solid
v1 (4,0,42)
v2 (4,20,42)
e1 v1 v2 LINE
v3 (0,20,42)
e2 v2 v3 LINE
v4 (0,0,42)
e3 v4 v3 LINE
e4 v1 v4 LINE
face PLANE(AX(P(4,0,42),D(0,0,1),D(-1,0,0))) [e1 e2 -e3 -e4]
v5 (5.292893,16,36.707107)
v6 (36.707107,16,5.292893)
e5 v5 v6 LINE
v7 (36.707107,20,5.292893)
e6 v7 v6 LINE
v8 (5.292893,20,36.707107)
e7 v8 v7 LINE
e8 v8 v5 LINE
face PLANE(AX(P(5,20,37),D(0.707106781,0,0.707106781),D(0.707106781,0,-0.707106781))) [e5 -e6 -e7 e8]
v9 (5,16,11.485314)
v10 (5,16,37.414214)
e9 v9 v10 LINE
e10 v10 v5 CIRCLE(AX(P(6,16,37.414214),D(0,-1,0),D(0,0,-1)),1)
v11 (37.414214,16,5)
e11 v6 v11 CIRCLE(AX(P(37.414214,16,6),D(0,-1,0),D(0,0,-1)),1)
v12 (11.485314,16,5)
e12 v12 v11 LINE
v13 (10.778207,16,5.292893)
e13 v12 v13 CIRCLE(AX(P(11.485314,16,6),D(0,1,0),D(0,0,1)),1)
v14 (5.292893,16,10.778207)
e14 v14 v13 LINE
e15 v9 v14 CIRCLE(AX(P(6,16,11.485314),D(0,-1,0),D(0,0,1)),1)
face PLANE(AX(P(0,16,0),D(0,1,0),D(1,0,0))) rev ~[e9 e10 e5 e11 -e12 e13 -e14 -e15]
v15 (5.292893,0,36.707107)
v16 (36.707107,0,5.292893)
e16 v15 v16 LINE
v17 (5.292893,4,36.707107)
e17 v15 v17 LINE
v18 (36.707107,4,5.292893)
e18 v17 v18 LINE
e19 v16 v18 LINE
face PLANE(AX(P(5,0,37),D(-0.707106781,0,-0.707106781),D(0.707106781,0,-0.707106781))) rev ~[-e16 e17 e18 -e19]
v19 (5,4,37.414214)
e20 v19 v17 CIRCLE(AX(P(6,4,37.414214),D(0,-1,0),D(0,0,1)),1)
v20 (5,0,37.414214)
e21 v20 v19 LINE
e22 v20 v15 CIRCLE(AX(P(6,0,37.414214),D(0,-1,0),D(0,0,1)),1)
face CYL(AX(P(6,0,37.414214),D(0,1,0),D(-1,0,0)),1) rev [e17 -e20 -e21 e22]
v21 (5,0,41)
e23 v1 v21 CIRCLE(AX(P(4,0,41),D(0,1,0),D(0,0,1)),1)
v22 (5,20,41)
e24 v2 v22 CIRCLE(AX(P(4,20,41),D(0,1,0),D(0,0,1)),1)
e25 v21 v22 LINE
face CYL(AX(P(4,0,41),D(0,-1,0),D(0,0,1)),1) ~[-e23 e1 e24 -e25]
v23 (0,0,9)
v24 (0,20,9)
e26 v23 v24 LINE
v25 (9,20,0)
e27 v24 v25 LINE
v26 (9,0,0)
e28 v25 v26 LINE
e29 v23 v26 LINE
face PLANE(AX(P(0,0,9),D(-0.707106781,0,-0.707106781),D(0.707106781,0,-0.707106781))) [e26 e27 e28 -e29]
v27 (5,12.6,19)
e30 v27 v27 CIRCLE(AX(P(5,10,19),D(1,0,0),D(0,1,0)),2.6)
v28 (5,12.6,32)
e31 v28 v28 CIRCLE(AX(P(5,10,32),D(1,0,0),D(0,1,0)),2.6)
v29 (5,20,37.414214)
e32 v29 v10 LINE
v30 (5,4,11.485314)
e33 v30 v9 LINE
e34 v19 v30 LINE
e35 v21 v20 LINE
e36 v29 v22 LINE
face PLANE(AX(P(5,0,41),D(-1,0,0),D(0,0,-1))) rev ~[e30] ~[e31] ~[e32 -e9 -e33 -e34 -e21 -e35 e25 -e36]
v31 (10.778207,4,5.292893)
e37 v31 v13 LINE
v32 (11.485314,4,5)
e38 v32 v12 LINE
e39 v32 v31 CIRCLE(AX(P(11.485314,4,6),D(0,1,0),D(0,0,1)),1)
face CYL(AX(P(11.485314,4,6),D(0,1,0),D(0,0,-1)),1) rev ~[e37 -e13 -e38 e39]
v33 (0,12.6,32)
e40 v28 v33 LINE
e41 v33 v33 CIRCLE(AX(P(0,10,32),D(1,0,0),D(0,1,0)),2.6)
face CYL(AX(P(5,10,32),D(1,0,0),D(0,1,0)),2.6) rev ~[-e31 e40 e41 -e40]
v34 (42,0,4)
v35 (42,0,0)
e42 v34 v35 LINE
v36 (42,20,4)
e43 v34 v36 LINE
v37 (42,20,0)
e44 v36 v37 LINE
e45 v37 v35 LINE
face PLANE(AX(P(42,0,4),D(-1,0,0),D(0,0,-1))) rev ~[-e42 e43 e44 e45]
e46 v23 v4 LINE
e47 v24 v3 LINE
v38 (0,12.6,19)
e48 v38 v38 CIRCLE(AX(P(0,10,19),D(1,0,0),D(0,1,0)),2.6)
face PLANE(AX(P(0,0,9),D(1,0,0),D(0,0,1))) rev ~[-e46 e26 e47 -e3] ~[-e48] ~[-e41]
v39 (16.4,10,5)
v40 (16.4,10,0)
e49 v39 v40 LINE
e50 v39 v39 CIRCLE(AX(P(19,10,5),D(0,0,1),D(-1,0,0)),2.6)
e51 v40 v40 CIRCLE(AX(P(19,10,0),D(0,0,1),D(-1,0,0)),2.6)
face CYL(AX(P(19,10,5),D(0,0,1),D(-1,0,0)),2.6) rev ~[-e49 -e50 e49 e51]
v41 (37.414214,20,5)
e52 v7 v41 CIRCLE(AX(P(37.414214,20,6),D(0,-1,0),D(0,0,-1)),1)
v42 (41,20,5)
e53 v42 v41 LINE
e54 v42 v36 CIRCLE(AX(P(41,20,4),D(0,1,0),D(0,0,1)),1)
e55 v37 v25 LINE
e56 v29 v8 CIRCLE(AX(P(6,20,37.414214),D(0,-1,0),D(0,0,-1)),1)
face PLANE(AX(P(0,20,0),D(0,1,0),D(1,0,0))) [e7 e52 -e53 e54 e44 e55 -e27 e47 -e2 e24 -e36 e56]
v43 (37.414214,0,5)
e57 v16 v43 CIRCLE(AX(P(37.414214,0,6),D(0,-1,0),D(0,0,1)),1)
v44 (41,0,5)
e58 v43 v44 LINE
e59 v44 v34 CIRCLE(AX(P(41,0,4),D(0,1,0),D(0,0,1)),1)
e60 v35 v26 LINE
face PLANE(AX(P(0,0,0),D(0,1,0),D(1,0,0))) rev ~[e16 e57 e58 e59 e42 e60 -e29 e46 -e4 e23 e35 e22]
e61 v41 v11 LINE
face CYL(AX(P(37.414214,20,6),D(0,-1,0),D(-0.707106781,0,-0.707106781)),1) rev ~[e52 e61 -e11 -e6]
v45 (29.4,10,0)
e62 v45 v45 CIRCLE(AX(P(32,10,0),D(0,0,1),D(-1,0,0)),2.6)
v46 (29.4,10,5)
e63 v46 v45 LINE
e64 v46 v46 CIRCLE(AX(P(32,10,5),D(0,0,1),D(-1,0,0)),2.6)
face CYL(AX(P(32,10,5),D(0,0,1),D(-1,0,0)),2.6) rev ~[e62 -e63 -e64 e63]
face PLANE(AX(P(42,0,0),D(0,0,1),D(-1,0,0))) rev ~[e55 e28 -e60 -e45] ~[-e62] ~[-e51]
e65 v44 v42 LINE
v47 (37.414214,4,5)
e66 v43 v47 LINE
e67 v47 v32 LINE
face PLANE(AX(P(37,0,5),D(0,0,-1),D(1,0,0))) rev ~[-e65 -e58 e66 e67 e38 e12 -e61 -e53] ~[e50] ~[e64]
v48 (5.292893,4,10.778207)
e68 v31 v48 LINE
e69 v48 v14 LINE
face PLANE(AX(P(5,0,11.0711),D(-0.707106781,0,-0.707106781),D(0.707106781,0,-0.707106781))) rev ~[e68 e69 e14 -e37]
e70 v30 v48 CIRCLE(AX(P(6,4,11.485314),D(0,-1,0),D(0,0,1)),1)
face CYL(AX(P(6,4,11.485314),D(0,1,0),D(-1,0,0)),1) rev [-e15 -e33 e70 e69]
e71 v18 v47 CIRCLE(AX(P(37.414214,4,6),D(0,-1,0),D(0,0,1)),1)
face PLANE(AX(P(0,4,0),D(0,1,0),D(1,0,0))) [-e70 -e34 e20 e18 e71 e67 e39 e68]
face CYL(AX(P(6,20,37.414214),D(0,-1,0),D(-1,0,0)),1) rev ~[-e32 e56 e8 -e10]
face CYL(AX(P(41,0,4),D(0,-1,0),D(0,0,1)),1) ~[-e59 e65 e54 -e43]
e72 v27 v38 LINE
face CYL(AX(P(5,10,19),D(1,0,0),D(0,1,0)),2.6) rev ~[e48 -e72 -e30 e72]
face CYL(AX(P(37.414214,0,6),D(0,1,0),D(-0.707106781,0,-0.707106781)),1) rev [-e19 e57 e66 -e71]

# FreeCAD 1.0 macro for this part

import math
import FreeCAD as App
import Part
import Sketcher

V = App.Vector


def edges_at(feature, points):
    """Names of the edges that pass closest to the given points."""
    edges = feature.Shape.Edges
    near = lambda p: min(range(len(edges)), key=lambda i: edges[i].distToShape(Part.Vertex(*p))[0])
    return sorted({f"Edge{near(p) + 1}" for p in points})

doc = App.newDocument("Part")
body = doc.addObject("PartDesign::Body", "Body")

# Sketch on XZ plane
sketch1 = doc.addObject("Sketcher::SketchObject", "Sketch")
body.addObject(sketch1)
sketch1.AttachmentSupport = (doc.XZ_Plane, [""])
sketch1.MapMode = "FlatFace"
sketch1.addGeometry(Part.LineSegment(V(9, 0, 0), V(0, 9, 0)), False)
sketch1.addGeometry(Part.LineSegment(V(0, 9, 0), V(0, 42, 0)), False)
sketch1.addGeometry(Part.LineSegment(V(0, 42, 0), V(4, 42, 0)), False)
sketch1.addGeometry(Part.ArcOfCircle(Part.Circle(V(4, 41, 0), V(0, 0, 1), 1), math.radians(0), math.radians(90)), False)
sketch1.addGeometry(Part.LineSegment(V(5, 41, 0), V(5, 37, 0)), False)
sketch1.addGeometry(Part.LineSegment(V(5, 37, 0), V(37, 5, 0)), False)
sketch1.addGeometry(Part.LineSegment(V(37, 5, 0), V(41, 5, 0)), False)
sketch1.addGeometry(Part.ArcOfCircle(Part.Circle(V(41, 4, 0), V(0, 0, 1), 1), math.radians(0), math.radians(90)), False)
sketch1.addGeometry(Part.LineSegment(V(42, 4, 0), V(42, 0, 0)), False)
sketch1.addGeometry(Part.LineSegment(V(42, 0, 0), V(9, 0, 0)), False)
sketch1.addConstraint(Sketcher.Constraint("Coincident", 0, 2, 1, 1))
sketch1.addConstraint(Sketcher.Constraint("Coincident", 1, 2, 2, 1))
sketch1.addConstraint(Sketcher.Constraint("Tangent", 2, 2, 3, 2))
sketch1.addConstraint(Sketcher.Constraint("Tangent", 3, 1, 4, 1))
sketch1.addConstraint(Sketcher.Constraint("Coincident", 4, 2, 5, 1))
sketch1.addConstraint(Sketcher.Constraint("Coincident", 5, 2, 6, 1))
sketch1.addConstraint(Sketcher.Constraint("Tangent", 6, 2, 7, 2))
sketch1.addConstraint(Sketcher.Constraint("Tangent", 7, 1, 8, 1))
sketch1.addConstraint(Sketcher.Constraint("Coincident", 8, 2, 9, 1))
sketch1.addConstraint(Sketcher.Constraint("Coincident", 9, 2, 0, 1))
sketch1.addConstraint(Sketcher.Constraint("Vertical", 1))
sketch1.addConstraint(Sketcher.Constraint("Horizontal", 2))
sketch1.addConstraint(Sketcher.Constraint("Vertical", 4))
sketch1.addConstraint(Sketcher.Constraint("Horizontal", 6))
sketch1.addConstraint(Sketcher.Constraint("Vertical", 8))
sketch1.addConstraint(Sketcher.Constraint("Horizontal", 9))
sketch1.addConstraint(Sketcher.Constraint("Equal", 3, 7))
sketch1.addConstraint(Sketcher.Constraint("PointOnObject", 0, 2, -2))
sketch1.addConstraint(Sketcher.Constraint("PointOnObject", 8, 2, -1))
sketch1.addConstraint(Sketcher.Constraint("Parallel", 0, 5))
sketch1.addConstraint(Sketcher.Constraint("Equal", 2, 6))
sketch1.addConstraint(Sketcher.Constraint("Equal", 9, 1))
sketch1.addConstraint(Sketcher.Constraint("Equal", 6, 4))
sketch1.addConstraint(Sketcher.Constraint("Equal", 4, 8))
sketch1.addConstraint(Sketcher.Constraint("Radius", 3, 1.0))
sketch1.addConstraint(Sketcher.Constraint("DistanceY", -1, 1, 0, 2, 9.0))
sketch1.addConstraint(Sketcher.Constraint("DistanceY", -1, 1, 1, 2, 42.0))
sketch1.addConstraint(Sketcher.Constraint("DistanceX", -1, 1, 3, 1, 5.0))
pad1 = doc.addObject("PartDesign::Pad", "Pad")
body.addObject(pad1)
pad1.Profile = sketch1
pad1.Length = 4
pad1.Reversed = True

# Sketch on XZ plane
sketch2 = doc.addObject("Sketcher::SketchObject", "Sketch001")
body.addObject(sketch2)
sketch2.AttachmentSupport = (doc.XZ_Plane, [""])
sketch2.MapMode = "FlatFace"
sketch2.addGeometry(Part.LineSegment(V(9, 0, 0), V(0, 9, 0)), False)
sketch2.addGeometry(Part.LineSegment(V(0, 9, 0), V(0, 42, 0)), False)
sketch2.addGeometry(Part.LineSegment(V(0, 42, 0), V(4, 42, 0)), False)
sketch2.addGeometry(Part.ArcOfCircle(Part.Circle(V(4, 41, 0), V(0, 0, 1), 1), math.radians(0), math.radians(90)), False)
sketch2.addGeometry(Part.LineSegment(V(5, 41, 0), V(5, 11.1, 0)), False)
sketch2.addGeometry(Part.LineSegment(V(5, 11.1, 0), V(11.1, 5, 0)), False)
sketch2.addGeometry(Part.LineSegment(V(11.1, 5, 0), V(41, 5, 0)), False)
sketch2.addGeometry(Part.ArcOfCircle(Part.Circle(V(41, 4, 0), V(0, 0, 1), 1), math.radians(0), math.radians(90)), False)
sketch2.addGeometry(Part.LineSegment(V(42, 4, 0), V(42, 0, 0)), False)
sketch2.addGeometry(Part.LineSegment(V(42, 0, 0), V(9, 0, 0)), False)
sketch2.addConstraint(Sketcher.Constraint("Coincident", 0, 2, 1, 1))
sketch2.addConstraint(Sketcher.Constraint("Coincident", 1, 2, 2, 1))
sketch2.addConstraint(Sketcher.Constraint("Tangent", 2, 2, 3, 2))
sketch2.addConstraint(Sketcher.Constraint("Tangent", 3, 1, 4, 1))
sketch2.addConstraint(Sketcher.Constraint("Coincident", 4, 2, 5, 1))
sketch2.addConstraint(Sketcher.Constraint("Coincident", 5, 2, 6, 1))
sketch2.addConstraint(Sketcher.Constraint("Tangent", 6, 2, 7, 2))
sketch2.addConstraint(Sketcher.Constraint("Tangent", 7, 1, 8, 1))
sketch2.addConstraint(Sketcher.Constraint("Coincident", 8, 2, 9, 1))
sketch2.addConstraint(Sketcher.Constraint("Coincident", 9, 2, 0, 1))
sketch2.addConstraint(Sketcher.Constraint("Vertical", 1))
sketch2.addConstraint(Sketcher.Constraint("Horizontal", 2))
sketch2.addConstraint(Sketcher.Constraint("Vertical", 4))
sketch2.addConstraint(Sketcher.Constraint("Horizontal", 6))
sketch2.addConstraint(Sketcher.Constraint("Vertical", 8))
sketch2.addConstraint(Sketcher.Constraint("Horizontal", 9))
sketch2.addConstraint(Sketcher.Constraint("Equal", 3, 7))
sketch2.addConstraint(Sketcher.Constraint("PointOnObject", 0, 2, -2))
sketch2.addConstraint(Sketcher.Constraint("PointOnObject", 8, 2, -1))
sketch2.addConstraint(Sketcher.Constraint("Parallel", 0, 5))
sketch2.addConstraint(Sketcher.Constraint("Equal", 9, 1))
sketch2.addConstraint(Sketcher.Constraint("Equal", 6, 4))
sketch2.addConstraint(Sketcher.Constraint("Equal", 2, 8))
sketch2.addConstraint(Sketcher.Constraint("Radius", 3, 1.0))
sketch2.addConstraint(Sketcher.Constraint("DistanceY", -1, 1, 0, 2, 9.0))
sketch2.addConstraint(Sketcher.Constraint("DistanceY", -1, 1, 1, 2, 42.0))
sketch2.addConstraint(Sketcher.Constraint("DistanceX", -1, 1, 3, 1, 5.0))
sketch2.addConstraint(Sketcher.Constraint("DistanceX", 6, 1, 6, 2, 29.929))
pad2 = doc.addObject("PartDesign::Pad", "Pad001")
body.addObject(pad2)
pad2.Profile = sketch2
pad2.Length = 20
pad2.Reversed = True

# Sketch on XZ plane
sketch3 = doc.addObject("Sketcher::SketchObject", "Sketch002")
body.addObject(sketch3)
sketch3.AttachmentSupport = (doc.XZ_Plane, [""])
sketch3.MapMode = "FlatFace"
sketch3.AttachmentOffset = App.Placement(V(0, 0, -20), App.Rotation())
sketch3.addGeometry(Part.LineSegment(V(9, 0, 0), V(0, 9, 0)), False)
sketch3.addGeometry(Part.LineSegment(V(0, 9, 0), V(0, 42, 0)), False)
sketch3.addGeometry(Part.LineSegment(V(0, 42, 0), V(4, 42, 0)), False)
sketch3.addGeometry(Part.ArcOfCircle(Part.Circle(V(4, 41, 0), V(0, 0, 1), 1), math.radians(0), math.radians(90)), False)
sketch3.addGeometry(Part.LineSegment(V(5, 41, 0), V(5, 37, 0)), False)
sketch3.addGeometry(Part.LineSegment(V(5, 37, 0), V(37, 5, 0)), False)
sketch3.addGeometry(Part.LineSegment(V(37, 5, 0), V(41, 5, 0)), False)
sketch3.addGeometry(Part.ArcOfCircle(Part.Circle(V(41, 4, 0), V(0, 0, 1), 1), math.radians(0), math.radians(90)), False)
sketch3.addGeometry(Part.LineSegment(V(42, 4, 0), V(42, 0, 0)), False)
sketch3.addGeometry(Part.LineSegment(V(42, 0, 0), V(9, 0, 0)), False)
sketch3.addConstraint(Sketcher.Constraint("Coincident", 0, 2, 1, 1))
sketch3.addConstraint(Sketcher.Constraint("Coincident", 1, 2, 2, 1))
sketch3.addConstraint(Sketcher.Constraint("Tangent", 2, 2, 3, 2))
sketch3.addConstraint(Sketcher.Constraint("Tangent", 3, 1, 4, 1))
sketch3.addConstraint(Sketcher.Constraint("Coincident", 4, 2, 5, 1))
sketch3.addConstraint(Sketcher.Constraint("Coincident", 5, 2, 6, 1))
sketch3.addConstraint(Sketcher.Constraint("Tangent", 6, 2, 7, 2))
sketch3.addConstraint(Sketcher.Constraint("Tangent", 7, 1, 8, 1))
sketch3.addConstraint(Sketcher.Constraint("Coincident", 8, 2, 9, 1))
sketch3.addConstraint(Sketcher.Constraint("Coincident", 9, 2, 0, 1))
sketch3.addConstraint(Sketcher.Constraint("Vertical", 1))
sketch3.addConstraint(Sketcher.Constraint("Horizontal", 2))
sketch3.addConstraint(Sketcher.Constraint("Vertical", 4))
sketch3.addConstraint(Sketcher.Constraint("Horizontal", 6))
sketch3.addConstraint(Sketcher.Constraint("Vertical", 8))
sketch3.addConstraint(Sketcher.Constraint("Horizontal", 9))
sketch3.addConstraint(Sketcher.Constraint("Equal", 3, 7))
sketch3.addConstraint(Sketcher.Constraint("PointOnObject", 0, 2, -2))
sketch3.addConstraint(Sketcher.Constraint("PointOnObject", 8, 2, -1))
sketch3.addConstraint(Sketcher.Constraint("Parallel", 0, 5))
sketch3.addConstraint(Sketcher.Constraint("Equal", 2, 6))
sketch3.addConstraint(Sketcher.Constraint("Equal", 9, 1))
sketch3.addConstraint(Sketcher.Constraint("Equal", 6, 4))
sketch3.addConstraint(Sketcher.Constraint("Equal", 4, 8))
sketch3.addConstraint(Sketcher.Constraint("Radius", 3, 1.0))
sketch3.addConstraint(Sketcher.Constraint("DistanceY", -1, 1, 0, 2, 9.0))
sketch3.addConstraint(Sketcher.Constraint("DistanceY", -1, 1, 1, 2, 42.0))
sketch3.addConstraint(Sketcher.Constraint("DistanceX", -1, 1, 3, 1, 5.0))
pad3 = doc.addObject("PartDesign::Pad", "Pad002")
body.addObject(pad3)
pad3.Profile = sketch3
pad3.Length = 4

# Sketch on YZ plane
sketch4 = doc.addObject("Sketcher::SketchObject", "Sketch003")
body.addObject(sketch4)
sketch4.AttachmentSupport = (doc.YZ_Plane, [""])
sketch4.MapMode = "FlatFace"
sketch4.AttachmentOffset = App.Placement(V(0, 0, 5), App.Rotation())
sketch4.addGeometry(Part.Circle(V(10, 32, 0), V(0, 0, 1), 2.5), False)
sketch4.addGeometry(Part.Circle(V(10, 19, 0), V(0, 0, 1), 2.5), False)
sketch4.addConstraint(Sketcher.Constraint("Equal", 0, 1))
sketch4.addConstraint(Sketcher.Constraint("Vertical", 0, 3, 1, 3))
sketch4.addConstraint(Sketcher.Constraint("Diameter", 0, 5.0))
sketch4.addConstraint(Sketcher.Constraint("DistanceX", -1, 1, 0, 3, 10.0))
sketch4.addConstraint(Sketcher.Constraint("DistanceY", 1, 3, 0, 3, 13.0))
sketch4.addConstraint(Sketcher.Constraint("DistanceY", -1, 1, 0, 3, 32.0))
pocket1 = doc.addObject("PartDesign::Pocket", "Pocket")
body.addObject(pocket1)
pocket1.Profile = sketch4
pocket1.Type = "ThroughAll"

# Sketch on XY plane
sketch5 = doc.addObject("Sketcher::SketchObject", "Sketch004")
body.addObject(sketch5)
sketch5.AttachmentSupport = (doc.XY_Plane, [""])
sketch5.MapMode = "FlatFace"
sketch5.AttachmentOffset = App.Placement(V(0, 0, 5), App.Rotation())
sketch5.addGeometry(Part.Circle(V(19, 10, 0), V(0, 0, 1), 2.5), False)
sketch5.addGeometry(Part.Circle(V(32, 10, 0), V(0, 0, 1), 2.5), False)
sketch5.addConstraint(Sketcher.Constraint("Equal", 0, 1))
sketch5.addConstraint(Sketcher.Constraint("Horizontal", 0, 3, 1, 3))
sketch5.addConstraint(Sketcher.Constraint("Diameter", 0, 5.0))
sketch5.addConstraint(Sketcher.Constraint("DistanceY", -1, 1, 0, 3, 10.0))
sketch5.addConstraint(Sketcher.Constraint("DistanceX", 0, 3, 1, 3, 13.0))
sketch5.addConstraint(Sketcher.Constraint("DistanceX", -1, 1, 0, 3, 19.0))
pocket2 = doc.addObject("PartDesign::Pocket", "Pocket001")
body.addObject(pocket2)
pocket2.Profile = sketch5
pocket2.Type = "ThroughAll"
doc.recompute()

fillet = doc.addObject("PartDesign::Fillet", "Fillet")
body.addObject(fillet)
fillet.Base = (pocket2, edges_at(pocket2, [(5, 10, 11.071), (11.071, 10, 5)]))
fillet.Radius = 1
doc.recompute()

fillet2 = doc.addObject("PartDesign::Fillet", "Fillet001")
body.addObject(fillet2)
fillet2.Base = (fillet, edges_at(fillet, [
    (37, 2, 5),
    (5, 2, 37),
    (5, 18, 37),
    (37, 18, 5),
]))
fillet2.Radius = 1

# Sketch on YZ plane
sketch6 = doc.addObject("Sketcher::SketchObject", "Sketch005")
body.addObject(sketch6)
sketch6.AttachmentSupport = (doc.YZ_Plane, [""])
sketch6.MapMode = "FlatFace"
sketch6.AttachmentOffset = App.Placement(V(0, 0, 5), App.Rotation())
sketch6.addGeometry(Part.Circle(V(10, 32, 0), V(0, 0, 1), 2.6), False)
sketch6.addGeometry(Part.Circle(V(10, 19, 0), V(0, 0, 1), 2.6), False)
sketch6.addConstraint(Sketcher.Constraint("Equal", 0, 1))
sketch6.addConstraint(Sketcher.Constraint("Vertical", 0, 3, 1, 3))
sketch6.addConstraint(Sketcher.Constraint("Diameter", 0, 5.2))
sketch6.addConstraint(Sketcher.Constraint("DistanceX", -1, 1, 0, 3, 10.0))
sketch6.addConstraint(Sketcher.Constraint("DistanceY", -1, 1, 0, 3, 32.0))
sketch6.addConstraint(Sketcher.Constraint("DistanceY", -1, 1, 1, 3, 19.0))
pocket3 = doc.addObject("PartDesign::Pocket", "Pocket002")
body.addObject(pocket3)
pocket3.Profile = sketch6
pocket3.Type = "ThroughAll"

# Sketch on XY plane
sketch7 = doc.addObject("Sketcher::SketchObject", "Sketch006")
body.addObject(sketch7)
sketch7.AttachmentSupport = (doc.XY_Plane, [""])
sketch7.MapMode = "FlatFace"
sketch7.AttachmentOffset = App.Placement(V(0, 0, 5), App.Rotation())
sketch7.addGeometry(Part.Circle(V(32, 10, 0), V(0, 0, 1), 2.6), False)
sketch7.addGeometry(Part.Circle(V(19, 10, 0), V(0, 0, 1), 2.6), False)
sketch7.addConstraint(Sketcher.Constraint("Equal", 0, 1))
sketch7.addConstraint(Sketcher.Constraint("Horizontal", 0, 3, 1, 3))
sketch7.addConstraint(Sketcher.Constraint("Diameter", 0, 5.2))
sketch7.addConstraint(Sketcher.Constraint("DistanceX", -1, 1, 0, 3, 32.0))
sketch7.addConstraint(Sketcher.Constraint("DistanceY", -1, 1, 0, 3, 10.0))
sketch7.addConstraint(Sketcher.Constraint("DistanceX", -1, 1, 1, 3, 19.0))
pocket4 = doc.addObject("PartDesign::Pocket", "Pocket003")
body.addObject(pocket4)
pocket4.Profile = sketch7
pocket4.Type = "ThroughAll"

doc.recompute()
